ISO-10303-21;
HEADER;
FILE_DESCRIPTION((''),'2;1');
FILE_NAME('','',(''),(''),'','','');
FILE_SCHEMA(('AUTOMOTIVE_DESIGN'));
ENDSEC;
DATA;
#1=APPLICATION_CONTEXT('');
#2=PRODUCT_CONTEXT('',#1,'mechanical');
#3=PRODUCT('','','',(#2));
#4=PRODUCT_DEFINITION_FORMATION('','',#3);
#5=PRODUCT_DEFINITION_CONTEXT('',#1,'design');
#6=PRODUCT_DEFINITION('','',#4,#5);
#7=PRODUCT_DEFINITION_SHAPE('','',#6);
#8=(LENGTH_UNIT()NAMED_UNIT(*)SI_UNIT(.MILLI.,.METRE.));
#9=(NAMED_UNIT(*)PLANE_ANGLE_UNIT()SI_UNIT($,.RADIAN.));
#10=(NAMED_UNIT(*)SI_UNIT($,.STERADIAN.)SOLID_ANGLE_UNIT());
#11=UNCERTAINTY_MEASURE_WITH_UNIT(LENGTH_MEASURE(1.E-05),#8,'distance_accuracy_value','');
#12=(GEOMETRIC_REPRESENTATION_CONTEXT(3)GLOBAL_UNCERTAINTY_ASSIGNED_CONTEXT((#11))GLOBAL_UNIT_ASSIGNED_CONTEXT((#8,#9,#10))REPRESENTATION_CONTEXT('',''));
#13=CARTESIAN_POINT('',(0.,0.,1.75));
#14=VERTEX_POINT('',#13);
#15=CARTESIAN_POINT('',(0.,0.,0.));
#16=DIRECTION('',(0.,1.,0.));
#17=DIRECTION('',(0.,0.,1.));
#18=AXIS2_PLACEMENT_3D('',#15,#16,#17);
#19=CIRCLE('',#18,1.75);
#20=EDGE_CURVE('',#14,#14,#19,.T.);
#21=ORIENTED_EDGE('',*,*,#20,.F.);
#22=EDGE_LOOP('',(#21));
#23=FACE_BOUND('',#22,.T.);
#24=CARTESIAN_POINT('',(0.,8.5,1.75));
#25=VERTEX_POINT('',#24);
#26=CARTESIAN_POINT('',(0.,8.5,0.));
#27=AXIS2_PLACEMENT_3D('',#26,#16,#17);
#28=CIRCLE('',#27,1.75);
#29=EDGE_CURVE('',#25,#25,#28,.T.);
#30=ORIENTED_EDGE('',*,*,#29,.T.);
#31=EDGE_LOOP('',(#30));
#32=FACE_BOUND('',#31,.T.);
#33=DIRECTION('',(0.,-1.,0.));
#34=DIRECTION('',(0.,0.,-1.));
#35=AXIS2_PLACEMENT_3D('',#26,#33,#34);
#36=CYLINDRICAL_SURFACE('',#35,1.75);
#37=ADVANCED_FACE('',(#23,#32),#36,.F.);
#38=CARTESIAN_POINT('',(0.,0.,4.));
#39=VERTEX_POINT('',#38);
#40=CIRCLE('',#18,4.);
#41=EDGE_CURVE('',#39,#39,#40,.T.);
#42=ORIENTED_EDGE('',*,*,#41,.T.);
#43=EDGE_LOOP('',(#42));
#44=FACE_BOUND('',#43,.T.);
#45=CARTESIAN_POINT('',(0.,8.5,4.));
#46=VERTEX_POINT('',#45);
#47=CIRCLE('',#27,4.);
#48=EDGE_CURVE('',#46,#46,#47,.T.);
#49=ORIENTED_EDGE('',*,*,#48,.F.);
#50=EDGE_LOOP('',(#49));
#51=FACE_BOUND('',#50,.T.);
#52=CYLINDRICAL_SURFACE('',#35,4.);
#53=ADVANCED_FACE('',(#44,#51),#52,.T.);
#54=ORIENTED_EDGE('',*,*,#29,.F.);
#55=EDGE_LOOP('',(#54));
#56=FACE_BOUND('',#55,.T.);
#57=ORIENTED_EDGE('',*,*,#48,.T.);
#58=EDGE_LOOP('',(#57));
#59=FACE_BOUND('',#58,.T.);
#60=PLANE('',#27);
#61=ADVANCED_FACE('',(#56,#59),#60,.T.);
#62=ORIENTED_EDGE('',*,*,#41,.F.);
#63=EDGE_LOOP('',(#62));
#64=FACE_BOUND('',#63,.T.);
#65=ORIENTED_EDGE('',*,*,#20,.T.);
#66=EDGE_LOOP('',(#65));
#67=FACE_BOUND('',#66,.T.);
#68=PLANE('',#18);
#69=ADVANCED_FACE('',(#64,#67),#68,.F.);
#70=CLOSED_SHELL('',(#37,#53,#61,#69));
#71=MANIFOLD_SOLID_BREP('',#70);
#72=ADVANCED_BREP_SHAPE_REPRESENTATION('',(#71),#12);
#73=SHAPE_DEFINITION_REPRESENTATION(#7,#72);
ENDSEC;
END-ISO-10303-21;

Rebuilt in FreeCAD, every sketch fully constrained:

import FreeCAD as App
import Part
import Sketcher
from FreeCAD import Vector
Q = App.Units.Quantity

doc = App.newDocument("Part")
body = doc.addObject("PartDesign::Body", "Body")

# Sketch on XZ plane
sketch1 = doc.addObject("Sketcher::SketchObject", "Sketch")
body.addObject(sketch1)
sketch1.AttachmentSupport = (doc.XZ_Plane, [""])
sketch1.MapMode = "FlatFace"
sketch1.addGeometry([
    Part.Circle(Vector(0, 0, 0), Vector(0, 0, 1), 4),
    Part.Circle(Vector(0, 0, 0), Vector(0, 0, 1), 1.75),
], False)
sketch1.addConstraint([
    Sketcher.Constraint("Coincident", 0, 3, -1, 1),
    Sketcher.Constraint("Coincident", 1, 3, -1, 1),
    Sketcher.Constraint("Diameter", 0, Q("8 mm")),
    Sketcher.Constraint("Diameter", 1, Q("3.5 mm")),
])
pad1 = doc.addObject("PartDesign::Pad", "Pad")
body.addObject(pad1)
pad1.Profile = sketch1
pad1.Length = 8.5
pad1.Reversed = True

doc.recompute()
